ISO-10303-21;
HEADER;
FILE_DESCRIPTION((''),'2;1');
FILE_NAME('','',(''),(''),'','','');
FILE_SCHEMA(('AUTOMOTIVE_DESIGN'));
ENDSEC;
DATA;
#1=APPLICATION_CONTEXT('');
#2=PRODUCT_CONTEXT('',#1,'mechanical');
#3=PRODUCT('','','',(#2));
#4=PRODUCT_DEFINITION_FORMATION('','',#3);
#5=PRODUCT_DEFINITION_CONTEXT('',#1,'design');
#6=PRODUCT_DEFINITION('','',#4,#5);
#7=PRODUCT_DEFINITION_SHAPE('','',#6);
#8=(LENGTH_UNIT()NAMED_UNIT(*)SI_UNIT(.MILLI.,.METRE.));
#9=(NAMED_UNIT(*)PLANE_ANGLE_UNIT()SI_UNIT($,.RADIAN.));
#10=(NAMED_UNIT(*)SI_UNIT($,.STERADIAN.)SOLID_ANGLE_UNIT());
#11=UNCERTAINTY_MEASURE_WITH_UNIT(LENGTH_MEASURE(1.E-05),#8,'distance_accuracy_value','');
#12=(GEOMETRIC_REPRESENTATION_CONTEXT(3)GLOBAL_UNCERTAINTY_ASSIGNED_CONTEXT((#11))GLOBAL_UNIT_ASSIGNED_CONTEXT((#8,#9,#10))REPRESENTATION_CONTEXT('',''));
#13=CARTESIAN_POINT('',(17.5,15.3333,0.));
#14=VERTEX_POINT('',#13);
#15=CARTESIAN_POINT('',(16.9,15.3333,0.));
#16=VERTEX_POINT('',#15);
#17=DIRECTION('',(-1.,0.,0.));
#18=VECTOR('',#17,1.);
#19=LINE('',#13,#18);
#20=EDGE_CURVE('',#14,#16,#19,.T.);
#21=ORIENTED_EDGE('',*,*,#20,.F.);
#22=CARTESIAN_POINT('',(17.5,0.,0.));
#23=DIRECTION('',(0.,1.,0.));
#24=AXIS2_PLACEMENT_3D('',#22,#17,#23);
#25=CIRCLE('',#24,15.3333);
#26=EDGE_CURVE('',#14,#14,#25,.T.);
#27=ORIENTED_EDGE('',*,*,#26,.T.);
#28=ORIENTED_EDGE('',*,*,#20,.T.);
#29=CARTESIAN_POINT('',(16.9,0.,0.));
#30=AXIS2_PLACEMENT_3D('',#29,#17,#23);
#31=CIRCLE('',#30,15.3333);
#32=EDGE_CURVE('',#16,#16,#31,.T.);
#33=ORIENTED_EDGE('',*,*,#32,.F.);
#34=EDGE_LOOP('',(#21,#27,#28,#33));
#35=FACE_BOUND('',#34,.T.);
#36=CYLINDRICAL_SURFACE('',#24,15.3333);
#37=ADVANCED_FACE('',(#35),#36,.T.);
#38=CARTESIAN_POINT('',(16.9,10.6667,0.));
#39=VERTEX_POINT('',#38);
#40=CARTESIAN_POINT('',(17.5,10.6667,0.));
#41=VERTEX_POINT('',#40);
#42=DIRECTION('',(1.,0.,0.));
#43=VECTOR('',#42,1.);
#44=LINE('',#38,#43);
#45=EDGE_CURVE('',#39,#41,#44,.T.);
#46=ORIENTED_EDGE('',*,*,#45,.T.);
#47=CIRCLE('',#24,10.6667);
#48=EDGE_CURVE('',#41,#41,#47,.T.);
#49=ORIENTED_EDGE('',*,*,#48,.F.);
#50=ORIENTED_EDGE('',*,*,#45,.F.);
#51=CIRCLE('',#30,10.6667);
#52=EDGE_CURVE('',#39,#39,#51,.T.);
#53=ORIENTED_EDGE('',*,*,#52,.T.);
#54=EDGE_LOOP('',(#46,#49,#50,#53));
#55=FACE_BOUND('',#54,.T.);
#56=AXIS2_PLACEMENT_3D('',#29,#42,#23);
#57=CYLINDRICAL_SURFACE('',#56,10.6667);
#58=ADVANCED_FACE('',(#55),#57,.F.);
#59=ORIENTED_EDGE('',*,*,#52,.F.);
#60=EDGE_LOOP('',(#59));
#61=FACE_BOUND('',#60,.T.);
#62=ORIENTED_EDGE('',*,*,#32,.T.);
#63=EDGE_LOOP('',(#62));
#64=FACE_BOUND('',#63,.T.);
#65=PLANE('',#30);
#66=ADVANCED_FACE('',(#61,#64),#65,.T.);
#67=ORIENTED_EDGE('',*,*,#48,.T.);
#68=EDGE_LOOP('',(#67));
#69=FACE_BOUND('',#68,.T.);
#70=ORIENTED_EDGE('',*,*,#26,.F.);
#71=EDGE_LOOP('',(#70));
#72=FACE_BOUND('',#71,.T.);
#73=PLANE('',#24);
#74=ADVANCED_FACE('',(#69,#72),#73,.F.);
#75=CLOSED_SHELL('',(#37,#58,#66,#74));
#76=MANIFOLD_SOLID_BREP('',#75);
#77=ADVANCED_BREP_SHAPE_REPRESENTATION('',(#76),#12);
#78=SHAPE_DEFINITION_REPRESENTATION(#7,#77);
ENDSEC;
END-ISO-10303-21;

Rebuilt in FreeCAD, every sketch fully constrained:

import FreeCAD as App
import Part
import Sketcher


def add_polygon(sketch, points):
    """Adds a closed chain of lines whose ends are joined by coincident constraints."""
    first, n = sketch.GeometryCount, len(points)
    for a, b in zip(points, points[1:] + points[:1]):
        sketch.addGeometry(Part.LineSegment(App.Vector(*a, 0), App.Vector(*b, 0)), False)
    for i in range(n):
        sketch.addConstraint(Sketcher.Constraint("Coincident", first + i, 2, first + (i + 1) % n, 1))

doc = App.newDocument("Part")
params = doc.addObject("Spreadsheet::Sheet", "Params")
for row, (alias, value) in enumerate([
    ("sketch1_width", "0.6 mm"),
    ("revolution_angle", "360 deg"),
], start=1):
    params.set(f"A{row}", alias)
    params.set(f"B{row}", "=" + value)
    params.setAlias(f"B{row}", alias)

body = doc.addObject("PartDesign::Body", "Body")

# Sketch on XY plane
sketch1 = doc.addObject("Sketcher::SketchObject", "Sketch")
body.addObject(sketch1)
sketch1.AttachmentSupport = (doc.XY_Plane, [""])
sketch1.MapMode = "FlatFace"
add_polygon(sketch1, [(17.5, 15.3), (16.9, 15.3), (16.9, 10.7), (17.5, 10.7)])  # lines 0-3
sketch1.addConstraint([
    Sketcher.Constraint("Horizontal", 0),
    Sketcher.Constraint("Vertical", 1),
    Sketcher.Constraint("Horizontal", 2),
    Sketcher.Constraint("Vertical", 3),
    Sketcher.Constraint("DistanceX", 0, 2, 0, 1, 0.6),
    Sketcher.Constraint("DistanceX", -1, 1, 0, 2, 16.9),
    Sketcher.Constraint("DistanceY", 1, 2, 1, 1, 4.6666),
    Sketcher.Constraint("DistanceY", -1, 1, 0, 2, 15.3333),
])
sketch1.setExpression("Constraints[8]", "Params.sketch1_width")
revolution = doc.addObject("PartDesign::Revolution", "Revolution")
body.addObject(revolution)
revolution.Profile = sketch1
revolution.ReferenceAxis = (sketch1, ["H_Axis"])
revolution.setExpression("Angle", "Params.revolution_angle")

doc.recompute()
